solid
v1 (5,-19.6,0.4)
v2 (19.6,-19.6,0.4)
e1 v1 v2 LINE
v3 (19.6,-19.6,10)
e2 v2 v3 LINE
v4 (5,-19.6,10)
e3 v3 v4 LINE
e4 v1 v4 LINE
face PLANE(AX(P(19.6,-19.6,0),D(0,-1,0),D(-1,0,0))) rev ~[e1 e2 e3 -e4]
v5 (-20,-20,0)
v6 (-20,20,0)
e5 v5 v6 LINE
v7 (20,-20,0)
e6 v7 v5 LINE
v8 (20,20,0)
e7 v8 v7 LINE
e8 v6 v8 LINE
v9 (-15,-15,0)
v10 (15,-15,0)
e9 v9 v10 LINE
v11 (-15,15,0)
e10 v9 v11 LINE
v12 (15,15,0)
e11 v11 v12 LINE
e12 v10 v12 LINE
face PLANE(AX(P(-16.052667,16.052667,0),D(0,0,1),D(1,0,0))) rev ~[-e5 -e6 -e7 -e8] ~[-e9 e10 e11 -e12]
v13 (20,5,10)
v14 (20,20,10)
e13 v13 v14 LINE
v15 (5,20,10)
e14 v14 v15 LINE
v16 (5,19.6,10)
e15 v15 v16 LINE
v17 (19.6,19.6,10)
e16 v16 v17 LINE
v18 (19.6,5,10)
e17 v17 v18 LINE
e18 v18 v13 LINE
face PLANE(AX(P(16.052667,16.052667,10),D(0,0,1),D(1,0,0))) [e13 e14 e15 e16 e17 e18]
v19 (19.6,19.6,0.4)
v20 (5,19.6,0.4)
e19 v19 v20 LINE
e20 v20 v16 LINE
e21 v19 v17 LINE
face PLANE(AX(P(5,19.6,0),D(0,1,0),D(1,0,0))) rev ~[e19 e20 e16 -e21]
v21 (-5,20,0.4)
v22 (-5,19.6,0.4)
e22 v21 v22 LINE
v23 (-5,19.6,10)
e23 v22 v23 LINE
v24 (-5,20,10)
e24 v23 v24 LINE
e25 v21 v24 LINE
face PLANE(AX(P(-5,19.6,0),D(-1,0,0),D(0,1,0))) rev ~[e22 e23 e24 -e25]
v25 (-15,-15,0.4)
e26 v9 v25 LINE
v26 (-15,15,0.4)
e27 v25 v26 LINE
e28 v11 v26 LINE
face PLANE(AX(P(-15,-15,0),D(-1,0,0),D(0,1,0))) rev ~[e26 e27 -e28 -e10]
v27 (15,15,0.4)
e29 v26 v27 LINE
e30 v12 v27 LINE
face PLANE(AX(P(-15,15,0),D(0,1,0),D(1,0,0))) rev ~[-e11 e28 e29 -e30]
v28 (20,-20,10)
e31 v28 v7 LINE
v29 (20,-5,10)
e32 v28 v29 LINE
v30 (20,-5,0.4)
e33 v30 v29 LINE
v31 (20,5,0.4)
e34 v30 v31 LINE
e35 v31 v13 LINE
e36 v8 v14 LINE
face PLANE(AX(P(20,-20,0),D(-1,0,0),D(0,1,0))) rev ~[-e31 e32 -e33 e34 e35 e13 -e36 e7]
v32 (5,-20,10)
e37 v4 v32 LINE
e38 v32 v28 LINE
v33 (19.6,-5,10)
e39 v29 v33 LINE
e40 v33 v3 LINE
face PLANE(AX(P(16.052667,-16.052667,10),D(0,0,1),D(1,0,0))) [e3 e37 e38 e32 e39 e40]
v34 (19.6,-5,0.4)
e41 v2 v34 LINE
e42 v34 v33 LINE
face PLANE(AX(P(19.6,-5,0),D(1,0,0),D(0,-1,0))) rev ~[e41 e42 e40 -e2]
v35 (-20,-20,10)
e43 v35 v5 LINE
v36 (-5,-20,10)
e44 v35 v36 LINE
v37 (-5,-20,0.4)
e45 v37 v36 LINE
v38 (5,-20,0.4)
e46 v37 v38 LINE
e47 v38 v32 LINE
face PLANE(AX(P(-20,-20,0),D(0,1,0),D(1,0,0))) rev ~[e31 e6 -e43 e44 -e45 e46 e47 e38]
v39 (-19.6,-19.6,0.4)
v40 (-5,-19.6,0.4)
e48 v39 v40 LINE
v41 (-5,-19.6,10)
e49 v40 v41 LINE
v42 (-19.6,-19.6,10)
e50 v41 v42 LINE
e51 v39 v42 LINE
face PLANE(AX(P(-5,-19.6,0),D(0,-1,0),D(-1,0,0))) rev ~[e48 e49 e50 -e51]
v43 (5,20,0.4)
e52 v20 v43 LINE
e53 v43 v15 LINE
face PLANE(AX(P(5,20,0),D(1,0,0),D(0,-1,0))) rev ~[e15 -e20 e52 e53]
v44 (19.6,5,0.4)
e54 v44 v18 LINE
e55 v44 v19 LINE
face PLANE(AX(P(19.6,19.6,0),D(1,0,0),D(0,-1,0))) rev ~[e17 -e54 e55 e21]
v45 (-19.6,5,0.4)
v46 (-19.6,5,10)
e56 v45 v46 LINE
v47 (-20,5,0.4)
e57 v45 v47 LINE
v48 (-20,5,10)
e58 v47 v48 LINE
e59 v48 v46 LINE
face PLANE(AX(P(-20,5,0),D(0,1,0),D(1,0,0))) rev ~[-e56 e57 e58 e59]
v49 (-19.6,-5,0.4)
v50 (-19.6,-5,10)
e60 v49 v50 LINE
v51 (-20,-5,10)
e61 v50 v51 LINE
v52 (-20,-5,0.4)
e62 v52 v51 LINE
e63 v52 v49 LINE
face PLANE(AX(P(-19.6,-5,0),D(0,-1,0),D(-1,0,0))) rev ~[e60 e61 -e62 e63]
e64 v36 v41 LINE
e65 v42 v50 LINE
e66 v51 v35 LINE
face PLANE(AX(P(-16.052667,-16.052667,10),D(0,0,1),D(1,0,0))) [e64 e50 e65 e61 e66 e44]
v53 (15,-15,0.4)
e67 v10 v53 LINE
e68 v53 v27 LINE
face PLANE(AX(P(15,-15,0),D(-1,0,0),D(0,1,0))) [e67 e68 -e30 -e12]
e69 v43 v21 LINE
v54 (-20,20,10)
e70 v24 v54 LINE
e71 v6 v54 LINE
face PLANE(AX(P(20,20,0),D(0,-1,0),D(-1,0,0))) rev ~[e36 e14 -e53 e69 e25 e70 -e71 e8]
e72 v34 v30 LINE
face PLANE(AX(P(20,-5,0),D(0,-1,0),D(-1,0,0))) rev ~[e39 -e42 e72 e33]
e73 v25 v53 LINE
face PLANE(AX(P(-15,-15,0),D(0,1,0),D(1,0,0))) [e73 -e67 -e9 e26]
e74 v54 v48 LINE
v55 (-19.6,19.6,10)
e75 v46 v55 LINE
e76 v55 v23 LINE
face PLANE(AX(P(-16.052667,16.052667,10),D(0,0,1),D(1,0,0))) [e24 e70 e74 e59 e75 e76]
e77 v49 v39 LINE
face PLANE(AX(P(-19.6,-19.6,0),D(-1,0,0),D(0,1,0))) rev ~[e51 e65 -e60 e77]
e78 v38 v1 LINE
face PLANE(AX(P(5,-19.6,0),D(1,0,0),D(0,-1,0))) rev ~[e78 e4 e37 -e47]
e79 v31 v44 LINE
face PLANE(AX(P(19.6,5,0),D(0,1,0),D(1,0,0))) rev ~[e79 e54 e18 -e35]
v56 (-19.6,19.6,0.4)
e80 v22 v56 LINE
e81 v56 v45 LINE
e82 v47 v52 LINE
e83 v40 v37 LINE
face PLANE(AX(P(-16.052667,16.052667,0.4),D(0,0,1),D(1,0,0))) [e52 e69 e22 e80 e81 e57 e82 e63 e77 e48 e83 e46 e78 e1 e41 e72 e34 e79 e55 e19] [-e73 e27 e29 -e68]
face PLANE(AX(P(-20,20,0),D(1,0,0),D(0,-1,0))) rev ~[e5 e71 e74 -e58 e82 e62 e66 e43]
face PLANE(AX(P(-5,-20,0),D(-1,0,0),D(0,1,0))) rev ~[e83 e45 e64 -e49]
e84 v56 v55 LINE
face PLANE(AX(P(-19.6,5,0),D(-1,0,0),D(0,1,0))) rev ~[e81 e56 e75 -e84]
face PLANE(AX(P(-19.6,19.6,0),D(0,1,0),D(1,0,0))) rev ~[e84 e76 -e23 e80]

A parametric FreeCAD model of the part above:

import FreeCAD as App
import Part
import Sketcher
from FreeCAD import Vector
Q = App.Units.Quantity

doc = App.newDocument("Part")
body = doc.addObject("PartDesign::Body", "Body")

# Sketch on XY plane
sketch1 = body.newObject("Sketcher::SketchObject", "Sketch")
sketch1.AttachmentSupport = (doc.getObject("XY_Plane"), [""])
sketch1.MapMode = "FlatFace"
sketch1.addGeometry([
    Part.LineSegment(Vector(-20, 20, 0), Vector(-20, -20, 0)),  # 0
    Part.LineSegment(Vector(-20, -20, 0), Vector(20, -20, 0)),  # 1
    Part.LineSegment(Vector(20, -20, 0), Vector(20, 20, 0)),  # 2
    Part.LineSegment(Vector(20, 20, 0), Vector(-20, 20, 0)),  # 3
    Part.LineSegment(Vector(15, -15, 0), Vector(-15, -15, 0)),  # 4
    Part.LineSegment(Vector(-15, -15, 0), Vector(-15, 15, 0)),  # 5
    Part.LineSegment(Vector(-15, 15, 0), Vector(15, 15, 0)),  # 6
    Part.LineSegment(Vector(15, 15, 0), Vector(15, -15, 0)),  # 7
], False)
sketch1.addConstraint([
    Sketcher.Constraint("Coincident", 0, 2, 1, 1),
    Sketcher.Constraint("Coincident", 1, 2, 2, 1),
    Sketcher.Constraint("Coincident", 2, 2, 3, 1),
    Sketcher.Constraint("Coincident", 3, 2, 0, 1),
    Sketcher.Constraint("Coincident", 4, 2, 5, 1),
    Sketcher.Constraint("Coincident", 5, 2, 6, 1),
    Sketcher.Constraint("Coincident", 6, 2, 7, 1),
    Sketcher.Constraint("Coincident", 7, 2, 4, 1),
    Sketcher.Constraint("Vertical", 0),
    Sketcher.Constraint("Horizontal", 1),
    Sketcher.Constraint("Vertical", 2),
    Sketcher.Constraint("Horizontal", 3),
    Sketcher.Constraint("Horizontal", 4),
    Sketcher.Constraint("Vertical", 5),
    Sketcher.Constraint("Horizontal", 6),
    Sketcher.Constraint("Vertical", 7),
    Sketcher.Constraint("Symmetric", 0, 2, 2, 2, -1, 1),
    Sketcher.Constraint("Symmetric", 4, 2, 6, 2, -1, 1),
    Sketcher.Constraint("Equal", 3, 0),
    Sketcher.Constraint("Equal", 6, 5),
    Sketcher.Constraint("DistanceX", 1, 1, 1, 2, Q("40 mm")),
    Sketcher.Constraint("DistanceX", 4, 2, 4, 1, Q("30 mm")),
])
pad1 = body.newObject("PartDesign::Pad", "Pad")
pad1.Profile = sketch1
pad1.Length = 0.4

# Sketch on XY plane
sketch2 = body.newObject("Sketcher::SketchObject", "Sketch001")
sketch2.AttachmentSupport = (doc.getObject("XY_Plane"), [""])
sketch2.MapMode = "FlatFace"
sketch2.addGeometry([
    Part.LineSegment(Vector(20, -20, 0), Vector(20, -5, 0)),  # 0
    Part.LineSegment(Vector(20, -5, 0), Vector(19.6, -5, 0)),  # 1
    Part.LineSegment(Vector(19.6, -5, 0), Vector(19.6, -19.6, 0)),  # 2
    Part.LineSegment(Vector(19.6, -19.6, 0), Vector(5, -19.6, 0)),  # 3
    Part.LineSegment(Vector(5, -19.6, 0), Vector(5, -20, 0)),  # 4
    Part.LineSegment(Vector(5, -20, 0), Vector(20, -20, 0)),  # 5
    Part.LineSegment(Vector(-19.6, -5, 0), Vector(-20, -5, 0)),  # 6
    Part.LineSegment(Vector(-20, -5, 0), Vector(-20, -20, 0)),  # 7
    Part.LineSegment(Vector(-20, -20, 0), Vector(-5, -20, 0)),  # 8
    Part.LineSegment(Vector(-5, -20, 0), Vector(-5, -19.6, 0)),  # 9
    Part.LineSegment(Vector(-5, -19.6, 0), Vector(-19.6, -19.6, 0)),  # 10
    Part.LineSegment(Vector(-19.6, -19.6, 0), Vector(-19.6, -5, 0)),  # 11
    Part.LineSegment(Vector(20, 20, 0), Vector(5, 20, 0)),  # 12
    Part.LineSegment(Vector(5, 20, 0), Vector(5, 19.6, 0)),  # 13
    Part.LineSegment(Vector(5, 19.6, 0), Vector(19.6, 19.6, 0)),  # 14
    Part.LineSegment(Vector(19.6, 19.6, 0), Vector(19.6, 5, 0)),  # 15
    Part.LineSegment(Vector(19.6, 5, 0), Vector(20, 5, 0)),  # 16
    Part.LineSegment(Vector(20, 5, 0), Vector(20, 20, 0)),  # 17
    Part.LineSegment(Vector(-5, 20, 0), Vector(-20, 20, 0)),  # 18
    Part.LineSegment(Vector(-20, 20, 0), Vector(-20, 5, 0)),  # 19
    Part.LineSegment(Vector(-20, 5, 0), Vector(-19.6, 5, 0)),  # 20
    Part.LineSegment(Vector(-19.6, 5, 0), Vector(-19.6, 19.6, 0)),  # 21
    Part.LineSegment(Vector(-19.6, 19.6, 0), Vector(-5, 19.6, 0)),  # 22
    Part.LineSegment(Vector(-5, 19.6, 0), Vector(-5, 20, 0)),  # 23
], False)
sketch2.addConstraint([
    Sketcher.Constraint("Coincident", 0, 2, 1, 1),
    Sketcher.Constraint("Coincident", 1, 2, 2, 1),
    Sketcher.Constraint("Coincident", 2, 2, 3, 1),
    Sketcher.Constraint("Coincident", 3, 2, 4, 1),
    Sketcher.Constraint("Coincident", 4, 2, 5, 1),
    Sketcher.Constraint("Coincident", 5, 2, 0, 1),
    Sketcher.Constraint("Coincident", 6, 2, 7, 1),
    Sketcher.Constraint("Coincident", 7, 2, 8, 1),
    Sketcher.Constraint("Coincident", 8, 2, 9, 1),
    Sketcher.Constraint("Coincident", 9, 2, 10, 1),
    Sketcher.Constraint("Coincident", 10, 2, 11, 1),
    Sketcher.Constraint("Coincident", 11, 2, 6, 1),
    Sketcher.Constraint("Coincident", 12, 2, 13, 1),
    Sketcher.Constraint("Coincident", 13, 2, 14, 1),
    Sketcher.Constraint("Coincident", 14, 2, 15, 1),
    Sketcher.Constraint("Coincident", 15, 2, 16, 1),
    Sketcher.Constraint("Coincident", 16, 2, 17, 1),
    Sketcher.Constraint("Coincident", 17, 2, 12, 1),
    Sketcher.Constraint("Coincident", 18, 2, 19, 1),
    Sketcher.Constraint("Coincident", 19, 2, 20, 1),
    Sketcher.Constraint("Coincident", 20, 2, 21, 1),
    Sketcher.Constraint("Coincident", 21, 2, 22, 1),
    Sketcher.Constraint("Coincident", 22, 2, 23, 1),
    Sketcher.Constraint("Coincident", 23, 2, 18, 1),
    Sketcher.Constraint("Vertical", 0),
    Sketcher.Constraint("Horizontal", 1),
    Sketcher.Constraint("Vertical", 2),
    Sketcher.Constraint("Horizontal", 3),
    Sketcher.Constraint("Vertical", 4),
    Sketcher.Constraint("Horizontal", 5),
    Sketcher.Constraint("Horizontal", 6),
    Sketcher.Constraint("Vertical", 7),
    Sketcher.Constraint("Horizontal", 8),
    Sketcher.Constraint("Vertical", 9),
    Sketcher.Constraint("Horizontal", 10),
    Sketcher.Constraint("Vertical", 11),
    Sketcher.Constraint("Horizontal", 12),
    Sketcher.Constraint("Vertical", 13),
    Sketcher.Constraint("Horizontal", 14),
    Sketcher.Constraint("Vertical", 15),
    Sketcher.Constraint("Horizontal", 16),
    Sketcher.Constraint("Vertical", 17),
    Sketcher.Constraint("Horizontal", 18),
    Sketcher.Constraint("Vertical", 19),
    Sketcher.Constraint("Horizontal", 20),
    Sketcher.Constraint("Vertical", 21),
    Sketcher.Constraint("Horizontal", 22),
    Sketcher.Constraint("Vertical", 23),
    Sketcher.Constraint("Symmetric", 8, 2, 12, 2, -1, 1),
    Sketcher.Constraint("Symmetric", 10, 2, 14, 2, -1, 1),
    Sketcher.Constraint("Symmetric", 6, 2, 16, 2, -1, 1),
    Sketcher.Constraint("Symmetric", 5, 2, 18, 2, -1, 1),
    Sketcher.Constraint("Symmetric", 1, 2, 20, 2, -1, 1),
    Sketcher.Constraint("Symmetric", 3, 2, 22, 2, -1, 1),
    Sketcher.Constraint("Symmetric", 0, 2, 6, 2, -2),
    Sketcher.Constraint("Symmetric", 4, 2, 8, 2, -2),
    Sketcher.Constraint("Symmetric", 2, 2, 10, 2, -2),
    Sketcher.Constraint("Equal", 18, 0),
    Sketcher.Constraint("Equal", 22, 2),
    Sketcher.Constraint("DistanceX", 5, 1, 5, 2, Q("15 mm")),
    Sketcher.Constraint("DistanceX", 1, 2, 1, 1, Q("0.4 mm")),
    Sketcher.Constraint("DistanceX", -1, 1, 0, 2, Q("20 mm")),
    Sketcher.Constraint("DistanceY", 0, 2, -1, 1, Q("5 mm")),
])
pad2 = body.newObject("PartDesign::Pad", "Pad001")
pad2.Profile = sketch2
pad2.Length = 10

doc.recompute()
